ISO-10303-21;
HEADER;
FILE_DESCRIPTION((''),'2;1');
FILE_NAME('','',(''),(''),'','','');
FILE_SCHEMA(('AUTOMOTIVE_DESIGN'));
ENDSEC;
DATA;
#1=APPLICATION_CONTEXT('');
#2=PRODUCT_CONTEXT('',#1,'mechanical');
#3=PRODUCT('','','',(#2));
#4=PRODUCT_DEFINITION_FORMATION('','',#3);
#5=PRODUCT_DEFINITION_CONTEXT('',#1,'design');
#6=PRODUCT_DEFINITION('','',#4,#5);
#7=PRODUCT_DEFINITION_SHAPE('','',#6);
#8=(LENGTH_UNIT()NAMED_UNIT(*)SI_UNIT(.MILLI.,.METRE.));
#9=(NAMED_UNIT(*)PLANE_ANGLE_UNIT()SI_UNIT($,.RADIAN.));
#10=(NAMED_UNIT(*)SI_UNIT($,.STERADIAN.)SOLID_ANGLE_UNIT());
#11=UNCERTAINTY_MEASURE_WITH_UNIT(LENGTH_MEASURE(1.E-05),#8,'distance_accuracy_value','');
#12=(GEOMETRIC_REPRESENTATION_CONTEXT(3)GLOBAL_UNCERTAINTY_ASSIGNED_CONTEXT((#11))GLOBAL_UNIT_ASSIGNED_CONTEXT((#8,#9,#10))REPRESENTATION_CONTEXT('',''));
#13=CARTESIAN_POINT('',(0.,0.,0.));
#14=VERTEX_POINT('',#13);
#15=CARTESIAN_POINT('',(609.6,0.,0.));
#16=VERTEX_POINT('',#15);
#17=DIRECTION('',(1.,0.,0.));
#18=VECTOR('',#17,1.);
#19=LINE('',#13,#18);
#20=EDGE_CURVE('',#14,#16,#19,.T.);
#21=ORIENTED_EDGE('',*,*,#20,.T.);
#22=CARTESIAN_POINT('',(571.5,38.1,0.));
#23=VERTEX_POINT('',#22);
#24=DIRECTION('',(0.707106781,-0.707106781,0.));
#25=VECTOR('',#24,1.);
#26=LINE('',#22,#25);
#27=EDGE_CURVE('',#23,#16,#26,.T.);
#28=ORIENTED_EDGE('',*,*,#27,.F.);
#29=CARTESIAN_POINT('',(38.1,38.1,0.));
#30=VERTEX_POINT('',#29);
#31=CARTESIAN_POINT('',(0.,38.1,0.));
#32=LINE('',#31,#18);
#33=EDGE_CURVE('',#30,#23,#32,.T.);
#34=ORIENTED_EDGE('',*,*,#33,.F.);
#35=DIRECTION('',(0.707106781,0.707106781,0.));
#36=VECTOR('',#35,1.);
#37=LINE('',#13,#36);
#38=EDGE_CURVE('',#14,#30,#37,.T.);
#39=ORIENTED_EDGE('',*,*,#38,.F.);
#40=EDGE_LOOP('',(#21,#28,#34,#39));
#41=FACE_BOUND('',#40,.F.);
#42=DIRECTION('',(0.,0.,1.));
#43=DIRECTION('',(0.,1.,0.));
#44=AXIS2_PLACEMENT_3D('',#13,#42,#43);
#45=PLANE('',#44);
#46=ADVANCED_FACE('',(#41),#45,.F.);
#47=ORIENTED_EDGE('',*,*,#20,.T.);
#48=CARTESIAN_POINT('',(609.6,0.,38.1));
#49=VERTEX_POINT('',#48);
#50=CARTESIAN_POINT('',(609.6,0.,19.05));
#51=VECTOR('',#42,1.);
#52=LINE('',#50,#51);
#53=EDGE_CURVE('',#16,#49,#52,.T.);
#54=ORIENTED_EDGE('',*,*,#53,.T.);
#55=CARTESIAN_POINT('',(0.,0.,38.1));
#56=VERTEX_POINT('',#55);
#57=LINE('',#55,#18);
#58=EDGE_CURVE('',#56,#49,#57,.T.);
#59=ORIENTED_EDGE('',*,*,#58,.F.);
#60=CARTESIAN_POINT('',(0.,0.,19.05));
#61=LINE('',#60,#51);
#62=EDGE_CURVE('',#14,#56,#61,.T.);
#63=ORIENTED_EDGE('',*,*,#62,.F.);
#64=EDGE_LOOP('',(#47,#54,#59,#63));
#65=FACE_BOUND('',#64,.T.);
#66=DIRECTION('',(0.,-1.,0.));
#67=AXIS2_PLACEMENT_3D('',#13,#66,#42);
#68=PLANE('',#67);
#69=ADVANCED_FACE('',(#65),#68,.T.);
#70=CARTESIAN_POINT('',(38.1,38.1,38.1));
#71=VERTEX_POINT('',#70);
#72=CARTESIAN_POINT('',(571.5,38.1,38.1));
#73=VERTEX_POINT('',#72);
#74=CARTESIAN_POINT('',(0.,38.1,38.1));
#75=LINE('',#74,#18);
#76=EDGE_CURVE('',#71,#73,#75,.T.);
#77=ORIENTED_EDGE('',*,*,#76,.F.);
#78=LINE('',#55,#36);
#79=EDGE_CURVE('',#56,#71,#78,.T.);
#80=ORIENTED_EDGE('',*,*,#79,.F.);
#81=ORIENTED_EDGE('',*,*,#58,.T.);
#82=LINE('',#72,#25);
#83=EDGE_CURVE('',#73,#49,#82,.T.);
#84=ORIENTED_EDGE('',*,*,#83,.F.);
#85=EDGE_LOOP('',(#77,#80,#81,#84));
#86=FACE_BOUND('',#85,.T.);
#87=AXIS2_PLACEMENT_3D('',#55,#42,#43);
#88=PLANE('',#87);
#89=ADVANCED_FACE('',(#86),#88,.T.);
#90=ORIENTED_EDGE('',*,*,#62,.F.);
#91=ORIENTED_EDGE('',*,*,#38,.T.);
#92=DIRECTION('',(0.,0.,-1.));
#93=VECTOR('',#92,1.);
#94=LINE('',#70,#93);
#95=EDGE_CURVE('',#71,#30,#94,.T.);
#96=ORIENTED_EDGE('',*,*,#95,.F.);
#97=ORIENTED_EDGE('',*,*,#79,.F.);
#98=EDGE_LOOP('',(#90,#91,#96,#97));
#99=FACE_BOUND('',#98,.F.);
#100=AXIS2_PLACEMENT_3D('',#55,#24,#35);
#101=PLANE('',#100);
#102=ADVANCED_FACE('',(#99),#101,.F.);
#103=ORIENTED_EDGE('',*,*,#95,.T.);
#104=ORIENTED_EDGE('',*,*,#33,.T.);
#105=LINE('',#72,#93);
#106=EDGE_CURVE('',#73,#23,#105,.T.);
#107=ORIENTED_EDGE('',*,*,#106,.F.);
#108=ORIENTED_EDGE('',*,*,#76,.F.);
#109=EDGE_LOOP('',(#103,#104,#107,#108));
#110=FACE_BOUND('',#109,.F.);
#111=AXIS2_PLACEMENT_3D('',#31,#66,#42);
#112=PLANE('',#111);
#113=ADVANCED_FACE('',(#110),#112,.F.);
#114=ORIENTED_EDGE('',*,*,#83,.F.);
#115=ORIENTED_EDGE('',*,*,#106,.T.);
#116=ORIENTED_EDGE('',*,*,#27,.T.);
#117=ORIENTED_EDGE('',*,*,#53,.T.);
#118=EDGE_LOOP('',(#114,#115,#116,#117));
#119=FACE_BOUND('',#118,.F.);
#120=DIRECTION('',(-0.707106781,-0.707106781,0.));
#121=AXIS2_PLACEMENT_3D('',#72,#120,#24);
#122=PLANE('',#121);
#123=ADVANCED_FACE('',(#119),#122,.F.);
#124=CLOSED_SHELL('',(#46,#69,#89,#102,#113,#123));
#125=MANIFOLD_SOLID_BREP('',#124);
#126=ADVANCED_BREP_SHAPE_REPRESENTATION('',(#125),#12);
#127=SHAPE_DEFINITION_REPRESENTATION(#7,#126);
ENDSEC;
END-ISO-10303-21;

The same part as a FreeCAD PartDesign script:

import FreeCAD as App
import Part
import Sketcher
from FreeCAD import Vector
Q = App.Units.Quantity

doc = App.newDocument("Part")
params = doc.addObject("Spreadsheet::Sheet", "Params")
for row, (alias, value) in enumerate([
    ("sketch1_width", "1.5 in"),
    ("pad1_length", "24 in"),
    ("sketch2_width", "1.5 in"),
    ("pocket1_length", "1.5 in"),
], start=1):
    params.set(f"A{row}", alias)
    params.set(f"B{row}", "=" + value)
    params.setAlias(f"B{row}", alias)

body = doc.addObject("PartDesign::Body", "Body")

sketch1 = doc.addObject("Sketcher::SketchObject", "Sketch")
body.addObject(sketch1)
sketch1.AttachmentSupport = (doc.YZ_Plane, [""])
sketch1.MapMode = "FlatFace"
sketch1.addGeometry(Part.LineSegment(Vector(0, 38, 0), Vector(0, 0, 0)), False)
sketch1.addGeometry(Part.LineSegment(Vector(0, 0, 0), Vector(38, 0, 0)), False)
sketch1.addGeometry(Part.LineSegment(Vector(38, 0, 0), Vector(38, 38, 0)), False)
sketch1.addGeometry(Part.LineSegment(Vector(38, 38, 0), Vector(0, 38, 0)), False)
sketch1.addConstraint(Sketcher.Constraint("Coincident", 0, 2, 1, 1))
sketch1.addConstraint(Sketcher.Constraint("Coincident", 1, 2, 2, 1))
sketch1.addConstraint(Sketcher.Constraint("Coincident", 2, 2, 3, 1))
sketch1.addConstraint(Sketcher.Constraint("Coincident", 3, 2, 0, 1))
sketch1.addConstraint(Sketcher.Constraint("Vertical", 0))
sketch1.addConstraint(Sketcher.Constraint("Horizontal", 1))
sketch1.addConstraint(Sketcher.Constraint("Vertical", 2))
sketch1.addConstraint(Sketcher.Constraint("Horizontal", 3))
sketch1.addConstraint(Sketcher.Constraint("Coincident", 0, 2, -1, 1))
sketch1.addConstraint(Sketcher.Constraint("Equal", 3, 0))
sketch1.addConstraint(Sketcher.Constraint("DistanceX", 1, 1, 1, 2, Q("1.5 in")))
sketch1.setExpression("Constraints[10]", "Params.sketch1_width")
pad1 = doc.addObject("PartDesign::Pad", "Pad")
body.addObject(pad1)
pad1.Profile = sketch1
pad1.setExpression("Length", "Params.pad1_length")

sketch2 = doc.addObject("Sketcher::SketchObject", "Sketch001")
body.addObject(sketch2)
sketch2.AttachmentSupport = (doc.XY_Plane, [""])
sketch2.MapMode = "FlatFace"
sketch2.AttachmentOffset = App.Placement(Vector(0, 0, 1.5 * 25.4), App.Rotation())
sketch2.addGeometry(Part.LineSegment(Vector(0, 38, 0), Vector(0, 0, 0)), False)
sketch2.addGeometry(Part.LineSegment(Vector(0, 0, 0), Vector(38, 38, 0)), False)
sketch2.addGeometry(Part.LineSegment(Vector(38, 38, 0), Vector(0, 38, 0)), False)
sketch2.addGeometry(Part.LineSegment(Vector(572, 38, 0), Vector(610, 0, 0)), False)
sketch2.addGeometry(Part.LineSegment(Vector(610, 0, 0), Vector(610, 38, 0)), False)
sketch2.addGeometry(Part.LineSegment(Vector(610, 38, 0), Vector(572, 38, 0)), False)
sketch2.addConstraint(Sketcher.Constraint("Coincident", 0, 2, 1, 1))
sketch2.addConstraint(Sketcher.Constraint("Coincident", 1, 2, 2, 1))
sketch2.addConstraint(Sketcher.Constraint("Coincident", 2, 2, 0, 1))
sketch2.addConstraint(Sketcher.Constraint("Coincident", 3, 2, 4, 1))
sketch2.addConstraint(Sketcher.Constraint("Coincident", 4, 2, 5, 1))
sketch2.addConstraint(Sketcher.Constraint("Coincident", 5, 2, 3, 1))
sketch2.addConstraint(Sketcher.Constraint("Vertical", 0))
sketch2.addConstraint(Sketcher.Constraint("Horizontal", 2))
sketch2.addConstraint(Sketcher.Constraint("Vertical", 4))
sketch2.addConstraint(Sketcher.Constraint("Horizontal", 5))
sketch2.addConstraint(Sketcher.Constraint("Coincident", 0, 2, -1, 1))
sketch2.addConstraint(Sketcher.Constraint("PointOnObject", 3, 2, -1))
sketch2.addConstraint(Sketcher.Constraint("Perpendicular", 1, 3))
sketch2.addConstraint(Sketcher.Constraint("Horizontal", 2, 2, 4, 2))
sketch2.addConstraint(Sketcher.Constraint("Equal", 2, 5))
sketch2.addConstraint(Sketcher.Constraint("DistanceX", 2, 2, 2, 1, Q("1.5 in")))
sketch2.addConstraint(Sketcher.Constraint("DistanceX", -1, 1, 3, 2, Q("24 in")))
sketch2.setExpression("Constraints[15]", "Params.sketch2_width")
pocket1 = doc.addObject("PartDesign::Pocket", "Pocket")
body.addObject(pocket1)
pocket1.Profile = sketch2
pocket1.setExpression("Length", "Params.pocket1_length")

doc.recompute()
